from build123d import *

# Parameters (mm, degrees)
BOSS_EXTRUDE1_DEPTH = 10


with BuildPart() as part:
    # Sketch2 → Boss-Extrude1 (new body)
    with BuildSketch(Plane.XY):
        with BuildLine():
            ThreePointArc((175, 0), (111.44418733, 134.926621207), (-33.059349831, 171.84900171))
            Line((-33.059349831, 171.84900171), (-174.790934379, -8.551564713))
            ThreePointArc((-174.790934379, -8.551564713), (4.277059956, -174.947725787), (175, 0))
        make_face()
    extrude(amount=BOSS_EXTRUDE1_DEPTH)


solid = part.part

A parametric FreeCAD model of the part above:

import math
import FreeCAD as App
import Part
import Sketcher

V = App.Vector

doc = App.newDocument("Part")
params = doc.addObject("Spreadsheet::Sheet", "Params")
for row, (alias, value) in enumerate([
    ("sketch1_radius", "175 mm"),
    ("pad1_length", "10 mm"),
], start=1):
    params.set(f"A{row}", alias)
    params.set(f"B{row}", "=" + value)
    params.setAlias(f"B{row}", alias)

body = doc.addObject("PartDesign::Body", "Body")

# Sketch on XY plane
sketch1 = body.newObject("Sketcher::SketchObject", "Sketch")
sketch1.AttachmentSupport = (doc.getObject("XY_Plane"), [""])
sketch1.MapMode = "FlatFace"
sketch1.addGeometry([
    Part.ArcOfCircle(Part.Circle(V(0, 0, 0), V(0, 0, 1), 175), math.radians(0), math.radians(101)),
    Part.LineSegment(V(-33, 172, 0), V(-175, -9, 0)),
    Part.ArcOfCircle(Part.Circle(V(0, 0, 0), V(0, 0, 1), 175), math.radians(-177), math.radians(0)),
], False)
sketch1.addConstraint([
    Sketcher.Constraint("Coincident", 0, 2, 1, 1),
    Sketcher.Constraint("Coincident", 1, 2, 2, 1),
    Sketcher.Constraint("Tangent", 2, 2, 0, 1),
    Sketcher.Constraint("Coincident", 0, 3, -1, 1),
    Sketcher.Constraint("Equal", 0, 2),
    Sketcher.Constraint("PointOnObject", 2, 2, -1),
    Sketcher.Constraint("Radius", 0, 175.0),
    Sketcher.Constraint("DistanceY", -1, 1, 0, 2, 171.849002),
    Sketcher.Constraint("Distance", 1, 229.417101),
])
sketch1.setExpression("Constraints[6]", "Params.sketch1_radius")
pad1 = body.newObject("PartDesign::Pad", "Pad")
pad1.Profile = sketch1
pad1.setExpression("Length", "Params.pad1_length")

doc.recompute()
